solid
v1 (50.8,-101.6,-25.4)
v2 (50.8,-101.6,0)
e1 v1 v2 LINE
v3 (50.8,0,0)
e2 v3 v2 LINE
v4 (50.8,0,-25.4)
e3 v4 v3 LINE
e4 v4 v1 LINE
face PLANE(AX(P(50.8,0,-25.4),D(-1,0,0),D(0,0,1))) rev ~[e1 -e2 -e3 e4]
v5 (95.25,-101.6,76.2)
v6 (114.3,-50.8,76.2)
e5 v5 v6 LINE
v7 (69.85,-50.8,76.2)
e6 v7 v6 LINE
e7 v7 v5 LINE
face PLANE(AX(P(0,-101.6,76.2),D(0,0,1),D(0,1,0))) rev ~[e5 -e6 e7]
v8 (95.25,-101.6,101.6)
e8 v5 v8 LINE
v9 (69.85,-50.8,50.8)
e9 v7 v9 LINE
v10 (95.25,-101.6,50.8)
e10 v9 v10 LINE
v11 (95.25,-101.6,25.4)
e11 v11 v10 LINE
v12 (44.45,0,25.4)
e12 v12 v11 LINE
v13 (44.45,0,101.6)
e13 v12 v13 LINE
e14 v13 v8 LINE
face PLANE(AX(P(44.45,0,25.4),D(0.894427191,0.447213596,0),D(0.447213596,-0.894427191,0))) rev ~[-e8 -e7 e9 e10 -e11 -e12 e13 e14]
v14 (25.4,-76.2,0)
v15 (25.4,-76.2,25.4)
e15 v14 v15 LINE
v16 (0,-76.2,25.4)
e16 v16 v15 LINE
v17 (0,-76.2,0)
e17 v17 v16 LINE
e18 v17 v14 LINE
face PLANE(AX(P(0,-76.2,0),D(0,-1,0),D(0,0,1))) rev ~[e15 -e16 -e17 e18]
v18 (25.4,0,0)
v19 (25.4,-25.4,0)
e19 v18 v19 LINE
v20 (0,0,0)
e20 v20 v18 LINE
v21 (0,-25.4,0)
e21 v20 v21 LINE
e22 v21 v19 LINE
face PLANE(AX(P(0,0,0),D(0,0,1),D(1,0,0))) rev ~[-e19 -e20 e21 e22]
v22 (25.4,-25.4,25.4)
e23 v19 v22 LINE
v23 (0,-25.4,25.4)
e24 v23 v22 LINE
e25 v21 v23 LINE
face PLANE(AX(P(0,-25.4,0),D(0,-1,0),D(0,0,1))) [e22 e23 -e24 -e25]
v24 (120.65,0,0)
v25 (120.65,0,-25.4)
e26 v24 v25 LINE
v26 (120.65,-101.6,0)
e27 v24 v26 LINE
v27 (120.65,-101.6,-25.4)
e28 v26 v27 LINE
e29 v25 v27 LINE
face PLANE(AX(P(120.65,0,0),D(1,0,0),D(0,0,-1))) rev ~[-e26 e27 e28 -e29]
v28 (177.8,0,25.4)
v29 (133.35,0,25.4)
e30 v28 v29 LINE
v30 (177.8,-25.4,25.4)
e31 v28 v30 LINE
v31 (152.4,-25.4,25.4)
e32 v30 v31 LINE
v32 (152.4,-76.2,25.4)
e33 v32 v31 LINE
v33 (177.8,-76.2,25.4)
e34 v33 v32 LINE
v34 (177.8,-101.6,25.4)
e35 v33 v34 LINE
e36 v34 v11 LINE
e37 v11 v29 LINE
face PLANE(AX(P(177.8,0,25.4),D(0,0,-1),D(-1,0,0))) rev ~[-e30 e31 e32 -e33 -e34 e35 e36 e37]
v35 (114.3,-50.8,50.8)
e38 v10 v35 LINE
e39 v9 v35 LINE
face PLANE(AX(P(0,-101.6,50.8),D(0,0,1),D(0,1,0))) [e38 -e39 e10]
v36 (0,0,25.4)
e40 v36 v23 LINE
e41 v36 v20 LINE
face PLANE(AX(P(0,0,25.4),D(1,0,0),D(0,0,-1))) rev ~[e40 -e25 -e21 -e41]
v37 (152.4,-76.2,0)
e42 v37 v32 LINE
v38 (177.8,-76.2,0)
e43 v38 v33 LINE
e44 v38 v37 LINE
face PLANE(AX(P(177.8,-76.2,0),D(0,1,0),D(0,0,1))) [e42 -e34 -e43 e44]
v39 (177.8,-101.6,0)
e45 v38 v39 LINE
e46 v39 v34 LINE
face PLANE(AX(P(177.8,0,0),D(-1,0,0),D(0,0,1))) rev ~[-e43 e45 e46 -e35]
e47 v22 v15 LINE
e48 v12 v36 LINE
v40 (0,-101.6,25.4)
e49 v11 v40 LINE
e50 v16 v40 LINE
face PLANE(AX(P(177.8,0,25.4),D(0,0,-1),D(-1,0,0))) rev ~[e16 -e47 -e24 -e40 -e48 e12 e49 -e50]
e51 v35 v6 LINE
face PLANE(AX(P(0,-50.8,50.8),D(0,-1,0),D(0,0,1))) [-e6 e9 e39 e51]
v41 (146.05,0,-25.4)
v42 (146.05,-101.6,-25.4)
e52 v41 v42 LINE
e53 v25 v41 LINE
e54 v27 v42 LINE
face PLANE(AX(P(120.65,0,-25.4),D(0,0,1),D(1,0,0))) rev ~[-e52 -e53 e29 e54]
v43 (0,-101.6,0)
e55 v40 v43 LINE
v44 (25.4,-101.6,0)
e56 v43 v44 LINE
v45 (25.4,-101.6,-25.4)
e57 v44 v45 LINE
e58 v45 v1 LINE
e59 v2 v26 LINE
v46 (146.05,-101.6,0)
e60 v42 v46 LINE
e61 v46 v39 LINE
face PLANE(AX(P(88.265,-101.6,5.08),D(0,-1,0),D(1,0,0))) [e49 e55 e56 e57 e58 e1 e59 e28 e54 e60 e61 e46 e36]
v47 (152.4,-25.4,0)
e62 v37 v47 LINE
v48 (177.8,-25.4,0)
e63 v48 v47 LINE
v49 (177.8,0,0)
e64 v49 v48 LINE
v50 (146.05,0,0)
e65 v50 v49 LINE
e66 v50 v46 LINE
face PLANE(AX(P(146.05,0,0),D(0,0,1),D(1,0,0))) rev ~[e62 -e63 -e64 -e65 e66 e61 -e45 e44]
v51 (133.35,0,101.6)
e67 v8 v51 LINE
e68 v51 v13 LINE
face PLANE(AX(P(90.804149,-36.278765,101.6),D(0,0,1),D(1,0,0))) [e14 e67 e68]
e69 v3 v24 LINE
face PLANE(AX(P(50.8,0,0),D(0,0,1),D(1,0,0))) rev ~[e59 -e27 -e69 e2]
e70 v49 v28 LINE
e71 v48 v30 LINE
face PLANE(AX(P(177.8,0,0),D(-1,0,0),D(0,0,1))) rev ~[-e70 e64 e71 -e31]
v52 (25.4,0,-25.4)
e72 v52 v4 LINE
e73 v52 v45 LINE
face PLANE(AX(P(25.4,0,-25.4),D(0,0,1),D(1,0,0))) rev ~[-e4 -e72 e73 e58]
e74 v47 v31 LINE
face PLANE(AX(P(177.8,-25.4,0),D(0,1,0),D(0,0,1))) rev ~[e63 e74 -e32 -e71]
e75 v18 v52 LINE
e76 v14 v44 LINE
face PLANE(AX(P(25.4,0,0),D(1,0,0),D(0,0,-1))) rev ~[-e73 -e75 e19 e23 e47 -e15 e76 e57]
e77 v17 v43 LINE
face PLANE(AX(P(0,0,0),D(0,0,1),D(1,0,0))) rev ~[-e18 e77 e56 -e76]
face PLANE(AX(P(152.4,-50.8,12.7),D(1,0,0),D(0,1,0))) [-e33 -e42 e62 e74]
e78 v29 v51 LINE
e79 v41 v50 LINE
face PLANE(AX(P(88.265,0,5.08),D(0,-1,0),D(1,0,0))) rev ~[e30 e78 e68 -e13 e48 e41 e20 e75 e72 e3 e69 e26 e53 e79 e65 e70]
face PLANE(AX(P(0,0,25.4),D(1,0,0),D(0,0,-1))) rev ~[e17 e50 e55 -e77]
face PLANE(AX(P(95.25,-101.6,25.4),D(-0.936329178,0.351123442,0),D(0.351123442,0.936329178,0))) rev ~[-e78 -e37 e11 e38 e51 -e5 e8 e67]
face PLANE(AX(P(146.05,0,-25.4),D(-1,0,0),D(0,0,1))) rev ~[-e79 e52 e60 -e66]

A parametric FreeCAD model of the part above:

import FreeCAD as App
import Part
import Sketcher
from FreeCAD import Vector
Q = App.Units.Quantity


def add_polygon(sketch, points):
    """Adds a closed chain of lines whose ends are joined by coincident constraints."""
    first, n = sketch.GeometryCount, len(points)
    for a, b in zip(points, points[1:] + points[:1]):
        sketch.addGeometry(Part.LineSegment(App.Vector(*a, 0), App.Vector(*b, 0)), False)
    for i in range(n):
        sketch.addConstraint(Sketcher.Constraint("Coincident", first + i, 2, first + (i + 1) % n, 1))

doc = App.newDocument("Part")
body = doc.addObject("PartDesign::Body", "Body")

# Sketch on XZ plane
sketch1 = doc.addObject("Sketcher::SketchObject", "Sketch")
body.addObject(sketch1)
sketch1.AttachmentSupport = (doc.XZ_Plane, [""])
sketch1.MapMode = "FlatFace"
add_polygon(sketch1, [(0, 25), (0, 0), (25, 0), (25, -25), (51, -25), (51, 0), (121, 0), (121, -25), (146, -25), (146, 0), (178, 0), (178, 25)])  # lines 0-11
sketch1.addConstraint([
    Sketcher.Constraint("Vertical", 0),
    Sketcher.Constraint("Horizontal", 1),
    Sketcher.Constraint("Vertical", 2),
    Sketcher.Constraint("Horizontal", 3),
    Sketcher.Constraint("Vertical", 4),
    Sketcher.Constraint("Horizontal", 5),
    Sketcher.Constraint("Vertical", 6),
    Sketcher.Constraint("Horizontal", 7),
    Sketcher.Constraint("Vertical", 8),
    Sketcher.Constraint("Horizontal", 9),
    Sketcher.Constraint("Vertical", 10),
    Sketcher.Constraint("Horizontal", 11),
    Sketcher.Constraint("Coincident", 0, 2, -1, 1),
    Sketcher.Constraint("PointOnObject", 4, 2, -1),
    Sketcher.Constraint("PointOnObject", 8, 2, -1),
    Sketcher.Constraint("Horizontal", 3, 2, 6, 2),
    Sketcher.Constraint("Equal", 1, 3),
    Sketcher.Constraint("Equal", 3, 7),
    Sketcher.Constraint("Equal", 7, 0),
    Sketcher.Constraint("Equal", 0, 2),
    Sketcher.Constraint("DistanceX", 1, 1, 1, 2, Q("1 in")),
    Sketcher.Constraint("DistanceX", 11, 2, 11, 1, Q("7 in")),
    Sketcher.Constraint("DistanceX", 5, 1, 5, 2, Q("2.75 in")),
])
pad1 = doc.addObject("PartDesign::Pad", "Pad")
body.addObject(pad1)
pad1.Profile = sketch1
pad1.Length = Q("4 in")

# Sketch on YZ plane
sketch2 = doc.addObject("Sketcher::SketchObject", "Sketch001")
body.addObject(sketch2)
sketch2.AttachmentSupport = (doc.YZ_Plane, [""])
sketch2.MapMode = "FlatFace"
sketch2.AttachmentOffset = App.Placement(Vector(0, 0, 7 * 25.4), App.Rotation())
add_polygon(sketch2, [(-76, 25), (-76, 0), (-25, 0), (-25, 25)])  # lines 0-3
sketch2.addConstraint([
    Sketcher.Constraint("Vertical", 0),
    Sketcher.Constraint("Horizontal", 1),
    Sketcher.Constraint("Vertical", 2),
    Sketcher.Constraint("Horizontal", 3),
    Sketcher.Constraint("PointOnObject", 0, 2, -1),
    Sketcher.Constraint("DistanceX", 1, 1, 1, 2, Q("2 in")),
    Sketcher.Constraint("DistanceY", 0, 2, 0, 1, Q("1 in")),
    Sketcher.Constraint("DistanceX", 0, 2, -1, 1, Q("3 in")),
])
pocket1 = doc.addObject("PartDesign::Pocket", "Pocket")
body.addObject(pocket1)
pocket1.Profile = sketch2
pocket1.Length = Q("1 in")

# Sketch on YZ plane
sketch3 = doc.addObject("Sketcher::SketchObject", "Sketch002")
body.addObject(sketch3)
sketch3.AttachmentSupport = (doc.YZ_Plane, [""])
sketch3.MapMode = "FlatFace"
add_polygon(sketch3, [(-25, 25), (-25, 0), (-76, 0), (-76, 25)])  # lines 0-3
sketch3.addConstraint([
    Sketcher.Constraint("Vertical", 0),
    Sketcher.Constraint("Horizontal", 1),
    Sketcher.Constraint("Vertical", 2),
    Sketcher.Constraint("Horizontal", 3),
    Sketcher.Constraint("PointOnObject", 0, 2, -1),
    Sketcher.Constraint("DistanceX", 1, 2, 1, 1, Q("2 in")),
    Sketcher.Constraint("DistanceY", 0, 2, 0, 1, Q("1 in")),
    Sketcher.Constraint("DistanceX", 0, 2, -1, 1, Q("1 in")),
])
pocket2 = doc.addObject("PartDesign::Pocket", "Pocket001")
body.addObject(pocket2)
pocket2.Profile = sketch3
pocket2.Length = Q("1 in")
pocket2.Reversed = True

# Sketch on XY plane
sketch4 = doc.addObject("Sketcher::SketchObject", "Sketch003")
body.addObject(sketch4)
sketch4.AttachmentSupport = (doc.XY_Plane, [""])
sketch4.MapMode = "FlatFace"
sketch4.AttachmentOffset = App.Placement(Vector(0, 0, 1 * 25.4), App.Rotation())
add_polygon(sketch4, [(44, 0), (95, -102), (133, 0)])  # lines 0-2
sketch4.addConstraint([
    Sketcher.Constraint("Horizontal", 2),
    Sketcher.Constraint("PointOnObject", 1, 2, -1),
    Sketcher.Constraint("DistanceX", 2, 2, 2, 1, Q("3.5 in")),
    Sketcher.Constraint("DistanceY", 0, 2, -1, 1, Q("4 in")),
    Sketcher.Constraint("DistanceX", 2, 2, 0, 2, Q("2 in")),
    Sketcher.Constraint("DistanceX", -1, 1, 0, 2, Q("3.75 in")),
])
pad2 = doc.addObject("PartDesign::Pad", "Pad001")
body.addObject(pad2)
pad2.Profile = sketch4
pad2.Length = Q("3 in")

# Sketch on YZ plane
sketch5 = doc.addObject("Sketcher::SketchObject", "Sketch004")
body.addObject(sketch5)
sketch5.AttachmentSupport = (doc.YZ_Plane, [""])
sketch5.MapMode = "FlatFace"
add_polygon(sketch5, [(-102, 76), (-102, 51), (-51, 51), (-51, 76)])  # lines 0-3
sketch5.addConstraint([
    Sketcher.Constraint("Vertical", 0),
    Sketcher.Constraint("Horizontal", 1),
    Sketcher.Constraint("Vertical", 2),
    Sketcher.Constraint("Horizontal", 3),
    Sketcher.Constraint("DistanceX", 1, 1, 1, 2, Q("2 in")),
    Sketcher.Constraint("DistanceY", 0, 2, 0, 1, Q("1 in")),
    Sketcher.Constraint("DistanceX", 0, 2, -1, 1, Q("4 in")),
    Sketcher.Constraint("DistanceY", -1, 1, 0, 2, Q("2 in")),
])
pocket3 = doc.addObject("PartDesign::Pocket", "Pocket002")
body.addObject(pocket3)
pocket3.Profile = sketch5
pocket3.Length = Q("10 in")
pocket3.Reversed = True

doc.recompute()
